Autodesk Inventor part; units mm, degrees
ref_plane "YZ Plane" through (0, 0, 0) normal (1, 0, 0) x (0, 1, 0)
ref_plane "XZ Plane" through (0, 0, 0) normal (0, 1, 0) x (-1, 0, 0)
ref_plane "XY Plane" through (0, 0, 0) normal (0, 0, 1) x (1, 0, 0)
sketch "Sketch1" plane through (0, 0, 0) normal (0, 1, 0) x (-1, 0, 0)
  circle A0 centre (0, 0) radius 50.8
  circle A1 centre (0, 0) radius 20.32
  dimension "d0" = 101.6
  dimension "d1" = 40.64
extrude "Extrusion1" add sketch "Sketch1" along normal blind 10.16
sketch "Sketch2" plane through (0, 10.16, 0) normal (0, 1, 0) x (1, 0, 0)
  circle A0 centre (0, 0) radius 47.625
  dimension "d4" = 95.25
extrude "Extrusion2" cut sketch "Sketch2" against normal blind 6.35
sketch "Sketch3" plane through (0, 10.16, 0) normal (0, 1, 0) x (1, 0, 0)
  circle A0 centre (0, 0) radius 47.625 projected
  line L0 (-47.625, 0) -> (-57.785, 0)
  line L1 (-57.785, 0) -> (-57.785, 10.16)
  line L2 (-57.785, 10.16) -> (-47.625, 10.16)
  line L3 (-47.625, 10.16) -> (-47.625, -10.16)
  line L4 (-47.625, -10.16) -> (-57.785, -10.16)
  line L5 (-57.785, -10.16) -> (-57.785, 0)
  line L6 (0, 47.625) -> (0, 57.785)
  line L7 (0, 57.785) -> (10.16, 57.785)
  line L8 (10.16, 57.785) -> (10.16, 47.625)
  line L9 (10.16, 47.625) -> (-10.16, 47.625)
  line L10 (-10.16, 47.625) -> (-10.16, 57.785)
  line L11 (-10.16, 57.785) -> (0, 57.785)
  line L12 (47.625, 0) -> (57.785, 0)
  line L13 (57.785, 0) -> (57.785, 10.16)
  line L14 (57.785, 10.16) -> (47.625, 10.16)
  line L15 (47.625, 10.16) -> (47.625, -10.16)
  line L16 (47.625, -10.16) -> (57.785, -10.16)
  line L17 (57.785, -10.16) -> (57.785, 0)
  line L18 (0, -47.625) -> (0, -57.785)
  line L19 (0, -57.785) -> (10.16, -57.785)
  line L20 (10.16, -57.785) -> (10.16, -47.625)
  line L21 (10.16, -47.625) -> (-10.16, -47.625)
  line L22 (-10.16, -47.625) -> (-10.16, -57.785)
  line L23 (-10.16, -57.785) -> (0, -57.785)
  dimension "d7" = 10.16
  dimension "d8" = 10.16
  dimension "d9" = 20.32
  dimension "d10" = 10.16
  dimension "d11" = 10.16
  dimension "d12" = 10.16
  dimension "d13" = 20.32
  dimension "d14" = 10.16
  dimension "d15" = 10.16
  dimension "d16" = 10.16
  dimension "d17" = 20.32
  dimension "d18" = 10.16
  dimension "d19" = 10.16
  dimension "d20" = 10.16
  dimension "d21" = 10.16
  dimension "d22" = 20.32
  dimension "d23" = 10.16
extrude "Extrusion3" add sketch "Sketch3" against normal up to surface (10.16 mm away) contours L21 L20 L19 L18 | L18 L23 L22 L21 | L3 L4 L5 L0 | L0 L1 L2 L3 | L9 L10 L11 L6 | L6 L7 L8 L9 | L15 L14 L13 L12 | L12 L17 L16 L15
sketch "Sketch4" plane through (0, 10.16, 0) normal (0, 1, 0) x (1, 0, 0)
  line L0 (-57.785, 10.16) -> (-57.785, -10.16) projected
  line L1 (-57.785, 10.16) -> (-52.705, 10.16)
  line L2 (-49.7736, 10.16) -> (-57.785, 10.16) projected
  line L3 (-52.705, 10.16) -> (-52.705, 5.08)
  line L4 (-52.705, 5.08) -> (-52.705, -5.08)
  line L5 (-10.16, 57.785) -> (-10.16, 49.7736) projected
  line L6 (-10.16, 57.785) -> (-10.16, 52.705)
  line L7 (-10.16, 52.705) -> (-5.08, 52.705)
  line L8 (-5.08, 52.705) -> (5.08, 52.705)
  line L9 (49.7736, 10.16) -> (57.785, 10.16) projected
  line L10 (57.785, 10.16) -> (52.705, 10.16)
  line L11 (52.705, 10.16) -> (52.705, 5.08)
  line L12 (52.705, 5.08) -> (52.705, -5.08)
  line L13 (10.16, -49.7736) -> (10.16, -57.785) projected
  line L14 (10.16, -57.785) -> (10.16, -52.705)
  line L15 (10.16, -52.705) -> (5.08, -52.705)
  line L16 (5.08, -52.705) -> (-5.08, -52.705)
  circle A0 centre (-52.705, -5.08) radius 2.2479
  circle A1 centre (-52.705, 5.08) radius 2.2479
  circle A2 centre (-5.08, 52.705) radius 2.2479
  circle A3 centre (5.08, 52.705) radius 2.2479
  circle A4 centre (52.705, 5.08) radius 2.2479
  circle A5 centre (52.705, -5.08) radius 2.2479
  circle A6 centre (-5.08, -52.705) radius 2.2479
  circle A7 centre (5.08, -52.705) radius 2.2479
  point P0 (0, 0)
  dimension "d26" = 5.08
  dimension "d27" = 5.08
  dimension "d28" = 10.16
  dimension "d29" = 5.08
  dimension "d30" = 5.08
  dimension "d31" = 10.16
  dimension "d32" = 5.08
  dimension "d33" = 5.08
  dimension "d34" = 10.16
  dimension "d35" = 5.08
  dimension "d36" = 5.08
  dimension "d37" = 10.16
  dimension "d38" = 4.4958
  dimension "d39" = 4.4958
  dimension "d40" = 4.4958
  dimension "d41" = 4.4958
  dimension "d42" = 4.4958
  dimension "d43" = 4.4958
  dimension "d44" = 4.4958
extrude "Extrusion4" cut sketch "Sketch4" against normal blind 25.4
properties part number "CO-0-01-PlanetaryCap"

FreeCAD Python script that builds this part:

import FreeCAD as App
import Part
import Sketcher

V = App.Vector
Q = App.Units.Quantity

doc = App.newDocument("Part")
params = doc.addObject("Spreadsheet::Sheet", "Params")
for row, (alias, value) in enumerate([
    ("sketch1_diameter", "4 in"),
    ("sketch1_diameter2", "1.6 in"),
    ("pad1_length", "0.4 in"),
    ("sketch2_diameter", "3.75 in"),
    ("pocket1_length", "0.25 in"),
    ("sketch3_width", "0.8 in"),
    ("sketch3_width2", "0.4 in"),
    ("pad2_length", "0.4 in"),
    ("sketch4_diameter", "0.177 in"),
    ("pocket2_length", "1 in"),
], start=1):
    params.set(f"A{row}", alias)
    params.set(f"B{row}", "=" + value)
    params.setAlias(f"B{row}", alias)

body = doc.addObject("PartDesign::Body", "Body")

sketch1 = body.newObject("Sketcher::SketchObject", "Sketch")
sketch1.AttachmentSupport = (doc.getObject("XZ_Plane"), [""])
sketch1.MapMode = "FlatFace"
sketch1.addGeometry(Part.Circle(V(0, 0, 0), V(0, 0, 1), 51), False)
sketch1.addGeometry(Part.Circle(V(0, 0, 0), V(0, 0, 1), 20), False)
sketch1.addConstraint(Sketcher.Constraint("Coincident", 0, 3, -1, 1))
sketch1.addConstraint(Sketcher.Constraint("Coincident", 1, 3, -1, 1))
sketch1.addConstraint(Sketcher.Constraint("Diameter", 0, Q("4 in")))
sketch1.addConstraint(Sketcher.Constraint("Diameter", 1, Q("1.6 in")))
sketch1.setExpression("Constraints[2]", "Params.sketch1_diameter")
sketch1.setExpression("Constraints[3]", "Params.sketch1_diameter2")
pad1 = body.newObject("PartDesign::Pad", "Pad")
pad1.Profile = sketch1
pad1.setExpression("Length", "Params.pad1_length")
pad1.Reversed = True

sketch2 = body.newObject("Sketcher::SketchObject", "Sketch001")
sketch2.AttachmentSupport = (doc.getObject("XZ_Plane"), [""])
sketch2.MapMode = "FlatFace"
sketch2.AttachmentOffset = App.Placement(V(0, 0, -0.4 * 25.4), App.Rotation())
sketch2.addGeometry(Part.Circle(V(0, 0, 0), V(0, 0, 1), 48), False)
sketch2.addConstraint(Sketcher.Constraint("Coincident", 0, 3, -1, 1))
sketch2.addConstraint(Sketcher.Constraint("Diameter", 0, Q("3.75 in")))
sketch2.setExpression("Constraints[1]", "Params.sketch2_diameter")
pocket1 = body.newObject("PartDesign::Pocket", "Pocket")
pocket1.Profile = sketch2
pocket1.setExpression("Length", "Params.pocket1_length")
pocket1.Reversed = True

sketch3 = body.newObject("Sketcher::SketchObject", "Sketch002")
sketch3.AttachmentSupport = (doc.getObject("XZ_Plane"), [""])
sketch3.MapMode = "FlatFace"
sketch3.AttachmentOffset = App.Placement(V(0, 0, -0.4 * 25.4), App.Rotation())
sketch3.addGeometry(Part.LineSegment(V(10, 48, 0), V(-10, 48, 0)), False)
sketch3.addGeometry(Part.LineSegment(V(-10, 48, 0), V(-10, 58, 0)), False)
sketch3.addGeometry(Part.LineSegment(V(-10, 58, 0), V(10, 58, 0)), False)
sketch3.addGeometry(Part.LineSegment(V(10, 58, 0), V(10, 48, 0)), False)
sketch3.addGeometry(Part.LineSegment(V(-48, 10, 0), V(-48, -10, 0)), False)
sketch3.addGeometry(Part.LineSegment(V(-48, -10, 0), V(-58, -10, 0)), False)
sketch3.addGeometry(Part.LineSegment(V(-58, -10, 0), V(-58, 10, 0)), False)
sketch3.addGeometry(Part.LineSegment(V(-58, 10, 0), V(-48, 10, 0)), False)
sketch3.addGeometry(Part.LineSegment(V(-10, -48, 0), V(10, -48, 0)), False)
sketch3.addGeometry(Part.LineSegment(V(10, -48, 0), V(10, -58, 0)), False)
sketch3.addGeometry(Part.LineSegment(V(10, -58, 0), V(-10, -58, 0)), False)
sketch3.addGeometry(Part.LineSegment(V(-10, -58, 0), V(-10, -48, 0)), False)
sketch3.addGeometry(Part.LineSegment(V(48, -10, 0), V(48, 10, 0)), False)
sketch3.addGeometry(Part.LineSegment(V(48, 10, 0), V(58, 10, 0)), False)
sketch3.addGeometry(Part.LineSegment(V(58, 10, 0), V(58, -10, 0)), False)
sketch3.addGeometry(Part.LineSegment(V(58, -10, 0), V(48, -10, 0)), False)
sketch3.addConstraint(Sketcher.Constraint("Coincident", 0, 2, 1, 1))
sketch3.addConstraint(Sketcher.Constraint("Coincident", 1, 2, 2, 1))
sketch3.addConstraint(Sketcher.Constraint("Coincident", 2, 2, 3, 1))
sketch3.addConstraint(Sketcher.Constraint("Coincident", 3, 2, 0, 1))
sketch3.addConstraint(Sketcher.Constraint("Coincident", 4, 2, 5, 1))
sketch3.addConstraint(Sketcher.Constraint("Coincident", 5, 2, 6, 1))
sketch3.addConstraint(Sketcher.Constraint("Coincident", 6, 2, 7, 1))
sketch3.addConstraint(Sketcher.Constraint("Coincident", 7, 2, 4, 1))
sketch3.addConstraint(Sketcher.Constraint("Coincident", 8, 2, 9, 1))
sketch3.addConstraint(Sketcher.Constraint("Coincident", 9, 2, 10, 1))
sketch3.addConstraint(Sketcher.Constraint("Coincident", 10, 2, 11, 1))
sketch3.addConstraint(Sketcher.Constraint("Coincident", 11, 2, 8, 1))
sketch3.addConstraint(Sketcher.Constraint("Coincident", 12, 2, 13, 1))
sketch3.addConstraint(Sketcher.Constraint("Coincident", 13, 2, 14, 1))
sketch3.addConstraint(Sketcher.Constraint("Coincident", 14, 2, 15, 1))
sketch3.addConstraint(Sketcher.Constraint("Coincident", 15, 2, 12, 1))
sketch3.addConstraint(Sketcher.Constraint("Horizontal", 0))
sketch3.addConstraint(Sketcher.Constraint("Vertical", 1))
sketch3.addConstraint(Sketcher.Constraint("Horizontal", 2))
sketch3.addConstraint(Sketcher.Constraint("Vertical", 3))
sketch3.addConstraint(Sketcher.Constraint("Vertical", 4))
sketch3.addConstraint(Sketcher.Constraint("Horizontal", 5))
sketch3.addConstraint(Sketcher.Constraint("Vertical", 6))
sketch3.addConstraint(Sketcher.Constraint("Horizontal", 7))
sketch3.addConstraint(Sketcher.Constraint("Horizontal", 8))
sketch3.addConstraint(Sketcher.Constraint("Vertical", 9))
sketch3.addConstraint(Sketcher.Constraint("Horizontal", 10))
sketch3.addConstraint(Sketcher.Constraint("Vertical", 11))
sketch3.addConstraint(Sketcher.Constraint("Vertical", 12))
sketch3.addConstraint(Sketcher.Constraint("Horizontal", 13))
sketch3.addConstraint(Sketcher.Constraint("Vertical", 14))
sketch3.addConstraint(Sketcher.Constraint("Horizontal", 15))
sketch3.addConstraint(Sketcher.Constraint("Symmetric", 0, 2, 8, 2, -1, 1))
sketch3.addConstraint(Sketcher.Constraint("Symmetric", 2, 2, 10, 2, -1, 1))
sketch3.addConstraint(Sketcher.Constraint("Symmetric", 4, 2, 12, 2, -1, 1))
sketch3.addConstraint(Sketcher.Constraint("Symmetric", 6, 2, 14, 2, -1, 1))
sketch3.addConstraint(Sketcher.Constraint("Horizontal", 7, 2, 12, 2))
sketch3.addConstraint(Sketcher.Constraint("Vertical", 3, 2, 8, 2))
sketch3.addConstraint(Sketcher.Constraint("Equal", 15, 1))
sketch3.addConstraint(Sketcher.Constraint("Equal", 10, 4))
sketch3.addConstraint(Sketcher.Constraint("DistanceX", 0, 2, 0, 1, Q("0.8 in")))
sketch3.addConstraint(Sketcher.Constraint("DistanceX", 5, 2, 5, 1, Q("0.4 in")))
sketch3.addConstraint(Sketcher.Constraint("DistanceY", 8, 2, 3, 2, Q("3.75 in")))
sketch3.addConstraint(Sketcher.Constraint("DistanceX", 4, 2, -1, 1, Q("1.875 in")))
sketch3.setExpression("Constraints[40]", "Params.sketch3_width")
sketch3.setExpression("Constraints[41]", "Params.sketch3_width2")
pad2 = body.newObject("PartDesign::Pad", "Pad001")
pad2.Profile = sketch3
pad2.setExpression("Length", "Params.pad2_length")

sketch4 = body.newObject("Sketcher::SketchObject", "Sketch003")
sketch4.AttachmentSupport = (doc.getObject("XZ_Plane"), [""])
sketch4.MapMode = "FlatFace"
sketch4.AttachmentOffset = App.Placement(V(0, 0, -0.4 * 25.4), App.Rotation())
sketch4.addGeometry(Part.Circle(V(-52.7, -5.1, 0), V(0, 0, 1), 2.2), False)
sketch4.addGeometry(Part.Circle(V(-52.7, 5.1, 0), V(0, 0, 1), 2.2), False)
sketch4.addGeometry(Part.Circle(V(-5.1, -52.7, 0), V(0, 0, 1), 2.2), False)
sketch4.addGeometry(Part.Circle(V(5.1, -52.7, 0), V(0, 0, 1), 2.2), False)
sketch4.addGeometry(Part.Circle(V(52.7, -5.1, 0), V(0, 0, 1), 2.2), False)
sketch4.addGeometry(Part.Circle(V(52.7, 5.1, 0), V(0, 0, 1), 2.2), False)
sketch4.addGeometry(Part.Circle(V(5.1, 52.7, 0), V(0, 0, 1), 2.2), False)
sketch4.addGeometry(Part.Circle(V(-5.1, 52.7, 0), V(0, 0, 1), 2.2), False)
sketch4.addConstraint(Sketcher.Constraint("Equal", 0, 1))
sketch4.addConstraint(Sketcher.Constraint("Equal", 1, 2))
sketch4.addConstraint(Sketcher.Constraint("Equal", 2, 3))
sketch4.addConstraint(Sketcher.Constraint("Equal", 3, 4))
sketch4.addConstraint(Sketcher.Constraint("Equal", 4, 5))
sketch4.addConstraint(Sketcher.Constraint("Equal", 5, 6))
sketch4.addConstraint(Sketcher.Constraint("Equal", 6, 7))
sketch4.addConstraint(Sketcher.Constraint("Symmetric", 1, 3, 4, 3, -1, 1))
sketch4.addConstraint(Sketcher.Constraint("Symmetric", 0, 3, 5, 3, -1, 1))
sketch4.addConstraint(Sketcher.Constraint("Symmetric", 2, 3, 6, 3, -1, 1))
sketch4.addConstraint(Sketcher.Constraint("Symmetric", 3, 3, 7, 3, -1, 1))
sketch4.addConstraint(Sketcher.Constraint("Symmetric", 2, 3, 3, 3, -2))
sketch4.addConstraint(Sketcher.Constraint("Symmetric", 0, 3, 4, 3, -2))
sketch4.addConstraint(Sketcher.Constraint("Diameter", 0, Q("0.177 in")))
sketch4.addConstraint(Sketcher.Constraint("DistanceY", 0, 3, -1, 1, Q("0.2 in")))
sketch4.addConstraint(Sketcher.Constraint("DistanceX", 2, 3, -1, 1, Q("0.2 in")))
sketch4.addConstraint(Sketcher.Constraint("DistanceX", 0, 3, 4, 3, Q("4.15 in")))
sketch4.addConstraint(Sketcher.Constraint("DistanceY", 3, 3, 6, 3, Q("4.15 in")))
sketch4.setExpression("Constraints[13]", "Params.sketch4_diameter")
pocket2 = body.newObject("PartDesign::Pocket", "Pocket001")
pocket2.Profile = sketch4
pocket2.setExpression("Length", "Params.pocket2_length")
pocket2.Reversed = True

doc.recompute()
